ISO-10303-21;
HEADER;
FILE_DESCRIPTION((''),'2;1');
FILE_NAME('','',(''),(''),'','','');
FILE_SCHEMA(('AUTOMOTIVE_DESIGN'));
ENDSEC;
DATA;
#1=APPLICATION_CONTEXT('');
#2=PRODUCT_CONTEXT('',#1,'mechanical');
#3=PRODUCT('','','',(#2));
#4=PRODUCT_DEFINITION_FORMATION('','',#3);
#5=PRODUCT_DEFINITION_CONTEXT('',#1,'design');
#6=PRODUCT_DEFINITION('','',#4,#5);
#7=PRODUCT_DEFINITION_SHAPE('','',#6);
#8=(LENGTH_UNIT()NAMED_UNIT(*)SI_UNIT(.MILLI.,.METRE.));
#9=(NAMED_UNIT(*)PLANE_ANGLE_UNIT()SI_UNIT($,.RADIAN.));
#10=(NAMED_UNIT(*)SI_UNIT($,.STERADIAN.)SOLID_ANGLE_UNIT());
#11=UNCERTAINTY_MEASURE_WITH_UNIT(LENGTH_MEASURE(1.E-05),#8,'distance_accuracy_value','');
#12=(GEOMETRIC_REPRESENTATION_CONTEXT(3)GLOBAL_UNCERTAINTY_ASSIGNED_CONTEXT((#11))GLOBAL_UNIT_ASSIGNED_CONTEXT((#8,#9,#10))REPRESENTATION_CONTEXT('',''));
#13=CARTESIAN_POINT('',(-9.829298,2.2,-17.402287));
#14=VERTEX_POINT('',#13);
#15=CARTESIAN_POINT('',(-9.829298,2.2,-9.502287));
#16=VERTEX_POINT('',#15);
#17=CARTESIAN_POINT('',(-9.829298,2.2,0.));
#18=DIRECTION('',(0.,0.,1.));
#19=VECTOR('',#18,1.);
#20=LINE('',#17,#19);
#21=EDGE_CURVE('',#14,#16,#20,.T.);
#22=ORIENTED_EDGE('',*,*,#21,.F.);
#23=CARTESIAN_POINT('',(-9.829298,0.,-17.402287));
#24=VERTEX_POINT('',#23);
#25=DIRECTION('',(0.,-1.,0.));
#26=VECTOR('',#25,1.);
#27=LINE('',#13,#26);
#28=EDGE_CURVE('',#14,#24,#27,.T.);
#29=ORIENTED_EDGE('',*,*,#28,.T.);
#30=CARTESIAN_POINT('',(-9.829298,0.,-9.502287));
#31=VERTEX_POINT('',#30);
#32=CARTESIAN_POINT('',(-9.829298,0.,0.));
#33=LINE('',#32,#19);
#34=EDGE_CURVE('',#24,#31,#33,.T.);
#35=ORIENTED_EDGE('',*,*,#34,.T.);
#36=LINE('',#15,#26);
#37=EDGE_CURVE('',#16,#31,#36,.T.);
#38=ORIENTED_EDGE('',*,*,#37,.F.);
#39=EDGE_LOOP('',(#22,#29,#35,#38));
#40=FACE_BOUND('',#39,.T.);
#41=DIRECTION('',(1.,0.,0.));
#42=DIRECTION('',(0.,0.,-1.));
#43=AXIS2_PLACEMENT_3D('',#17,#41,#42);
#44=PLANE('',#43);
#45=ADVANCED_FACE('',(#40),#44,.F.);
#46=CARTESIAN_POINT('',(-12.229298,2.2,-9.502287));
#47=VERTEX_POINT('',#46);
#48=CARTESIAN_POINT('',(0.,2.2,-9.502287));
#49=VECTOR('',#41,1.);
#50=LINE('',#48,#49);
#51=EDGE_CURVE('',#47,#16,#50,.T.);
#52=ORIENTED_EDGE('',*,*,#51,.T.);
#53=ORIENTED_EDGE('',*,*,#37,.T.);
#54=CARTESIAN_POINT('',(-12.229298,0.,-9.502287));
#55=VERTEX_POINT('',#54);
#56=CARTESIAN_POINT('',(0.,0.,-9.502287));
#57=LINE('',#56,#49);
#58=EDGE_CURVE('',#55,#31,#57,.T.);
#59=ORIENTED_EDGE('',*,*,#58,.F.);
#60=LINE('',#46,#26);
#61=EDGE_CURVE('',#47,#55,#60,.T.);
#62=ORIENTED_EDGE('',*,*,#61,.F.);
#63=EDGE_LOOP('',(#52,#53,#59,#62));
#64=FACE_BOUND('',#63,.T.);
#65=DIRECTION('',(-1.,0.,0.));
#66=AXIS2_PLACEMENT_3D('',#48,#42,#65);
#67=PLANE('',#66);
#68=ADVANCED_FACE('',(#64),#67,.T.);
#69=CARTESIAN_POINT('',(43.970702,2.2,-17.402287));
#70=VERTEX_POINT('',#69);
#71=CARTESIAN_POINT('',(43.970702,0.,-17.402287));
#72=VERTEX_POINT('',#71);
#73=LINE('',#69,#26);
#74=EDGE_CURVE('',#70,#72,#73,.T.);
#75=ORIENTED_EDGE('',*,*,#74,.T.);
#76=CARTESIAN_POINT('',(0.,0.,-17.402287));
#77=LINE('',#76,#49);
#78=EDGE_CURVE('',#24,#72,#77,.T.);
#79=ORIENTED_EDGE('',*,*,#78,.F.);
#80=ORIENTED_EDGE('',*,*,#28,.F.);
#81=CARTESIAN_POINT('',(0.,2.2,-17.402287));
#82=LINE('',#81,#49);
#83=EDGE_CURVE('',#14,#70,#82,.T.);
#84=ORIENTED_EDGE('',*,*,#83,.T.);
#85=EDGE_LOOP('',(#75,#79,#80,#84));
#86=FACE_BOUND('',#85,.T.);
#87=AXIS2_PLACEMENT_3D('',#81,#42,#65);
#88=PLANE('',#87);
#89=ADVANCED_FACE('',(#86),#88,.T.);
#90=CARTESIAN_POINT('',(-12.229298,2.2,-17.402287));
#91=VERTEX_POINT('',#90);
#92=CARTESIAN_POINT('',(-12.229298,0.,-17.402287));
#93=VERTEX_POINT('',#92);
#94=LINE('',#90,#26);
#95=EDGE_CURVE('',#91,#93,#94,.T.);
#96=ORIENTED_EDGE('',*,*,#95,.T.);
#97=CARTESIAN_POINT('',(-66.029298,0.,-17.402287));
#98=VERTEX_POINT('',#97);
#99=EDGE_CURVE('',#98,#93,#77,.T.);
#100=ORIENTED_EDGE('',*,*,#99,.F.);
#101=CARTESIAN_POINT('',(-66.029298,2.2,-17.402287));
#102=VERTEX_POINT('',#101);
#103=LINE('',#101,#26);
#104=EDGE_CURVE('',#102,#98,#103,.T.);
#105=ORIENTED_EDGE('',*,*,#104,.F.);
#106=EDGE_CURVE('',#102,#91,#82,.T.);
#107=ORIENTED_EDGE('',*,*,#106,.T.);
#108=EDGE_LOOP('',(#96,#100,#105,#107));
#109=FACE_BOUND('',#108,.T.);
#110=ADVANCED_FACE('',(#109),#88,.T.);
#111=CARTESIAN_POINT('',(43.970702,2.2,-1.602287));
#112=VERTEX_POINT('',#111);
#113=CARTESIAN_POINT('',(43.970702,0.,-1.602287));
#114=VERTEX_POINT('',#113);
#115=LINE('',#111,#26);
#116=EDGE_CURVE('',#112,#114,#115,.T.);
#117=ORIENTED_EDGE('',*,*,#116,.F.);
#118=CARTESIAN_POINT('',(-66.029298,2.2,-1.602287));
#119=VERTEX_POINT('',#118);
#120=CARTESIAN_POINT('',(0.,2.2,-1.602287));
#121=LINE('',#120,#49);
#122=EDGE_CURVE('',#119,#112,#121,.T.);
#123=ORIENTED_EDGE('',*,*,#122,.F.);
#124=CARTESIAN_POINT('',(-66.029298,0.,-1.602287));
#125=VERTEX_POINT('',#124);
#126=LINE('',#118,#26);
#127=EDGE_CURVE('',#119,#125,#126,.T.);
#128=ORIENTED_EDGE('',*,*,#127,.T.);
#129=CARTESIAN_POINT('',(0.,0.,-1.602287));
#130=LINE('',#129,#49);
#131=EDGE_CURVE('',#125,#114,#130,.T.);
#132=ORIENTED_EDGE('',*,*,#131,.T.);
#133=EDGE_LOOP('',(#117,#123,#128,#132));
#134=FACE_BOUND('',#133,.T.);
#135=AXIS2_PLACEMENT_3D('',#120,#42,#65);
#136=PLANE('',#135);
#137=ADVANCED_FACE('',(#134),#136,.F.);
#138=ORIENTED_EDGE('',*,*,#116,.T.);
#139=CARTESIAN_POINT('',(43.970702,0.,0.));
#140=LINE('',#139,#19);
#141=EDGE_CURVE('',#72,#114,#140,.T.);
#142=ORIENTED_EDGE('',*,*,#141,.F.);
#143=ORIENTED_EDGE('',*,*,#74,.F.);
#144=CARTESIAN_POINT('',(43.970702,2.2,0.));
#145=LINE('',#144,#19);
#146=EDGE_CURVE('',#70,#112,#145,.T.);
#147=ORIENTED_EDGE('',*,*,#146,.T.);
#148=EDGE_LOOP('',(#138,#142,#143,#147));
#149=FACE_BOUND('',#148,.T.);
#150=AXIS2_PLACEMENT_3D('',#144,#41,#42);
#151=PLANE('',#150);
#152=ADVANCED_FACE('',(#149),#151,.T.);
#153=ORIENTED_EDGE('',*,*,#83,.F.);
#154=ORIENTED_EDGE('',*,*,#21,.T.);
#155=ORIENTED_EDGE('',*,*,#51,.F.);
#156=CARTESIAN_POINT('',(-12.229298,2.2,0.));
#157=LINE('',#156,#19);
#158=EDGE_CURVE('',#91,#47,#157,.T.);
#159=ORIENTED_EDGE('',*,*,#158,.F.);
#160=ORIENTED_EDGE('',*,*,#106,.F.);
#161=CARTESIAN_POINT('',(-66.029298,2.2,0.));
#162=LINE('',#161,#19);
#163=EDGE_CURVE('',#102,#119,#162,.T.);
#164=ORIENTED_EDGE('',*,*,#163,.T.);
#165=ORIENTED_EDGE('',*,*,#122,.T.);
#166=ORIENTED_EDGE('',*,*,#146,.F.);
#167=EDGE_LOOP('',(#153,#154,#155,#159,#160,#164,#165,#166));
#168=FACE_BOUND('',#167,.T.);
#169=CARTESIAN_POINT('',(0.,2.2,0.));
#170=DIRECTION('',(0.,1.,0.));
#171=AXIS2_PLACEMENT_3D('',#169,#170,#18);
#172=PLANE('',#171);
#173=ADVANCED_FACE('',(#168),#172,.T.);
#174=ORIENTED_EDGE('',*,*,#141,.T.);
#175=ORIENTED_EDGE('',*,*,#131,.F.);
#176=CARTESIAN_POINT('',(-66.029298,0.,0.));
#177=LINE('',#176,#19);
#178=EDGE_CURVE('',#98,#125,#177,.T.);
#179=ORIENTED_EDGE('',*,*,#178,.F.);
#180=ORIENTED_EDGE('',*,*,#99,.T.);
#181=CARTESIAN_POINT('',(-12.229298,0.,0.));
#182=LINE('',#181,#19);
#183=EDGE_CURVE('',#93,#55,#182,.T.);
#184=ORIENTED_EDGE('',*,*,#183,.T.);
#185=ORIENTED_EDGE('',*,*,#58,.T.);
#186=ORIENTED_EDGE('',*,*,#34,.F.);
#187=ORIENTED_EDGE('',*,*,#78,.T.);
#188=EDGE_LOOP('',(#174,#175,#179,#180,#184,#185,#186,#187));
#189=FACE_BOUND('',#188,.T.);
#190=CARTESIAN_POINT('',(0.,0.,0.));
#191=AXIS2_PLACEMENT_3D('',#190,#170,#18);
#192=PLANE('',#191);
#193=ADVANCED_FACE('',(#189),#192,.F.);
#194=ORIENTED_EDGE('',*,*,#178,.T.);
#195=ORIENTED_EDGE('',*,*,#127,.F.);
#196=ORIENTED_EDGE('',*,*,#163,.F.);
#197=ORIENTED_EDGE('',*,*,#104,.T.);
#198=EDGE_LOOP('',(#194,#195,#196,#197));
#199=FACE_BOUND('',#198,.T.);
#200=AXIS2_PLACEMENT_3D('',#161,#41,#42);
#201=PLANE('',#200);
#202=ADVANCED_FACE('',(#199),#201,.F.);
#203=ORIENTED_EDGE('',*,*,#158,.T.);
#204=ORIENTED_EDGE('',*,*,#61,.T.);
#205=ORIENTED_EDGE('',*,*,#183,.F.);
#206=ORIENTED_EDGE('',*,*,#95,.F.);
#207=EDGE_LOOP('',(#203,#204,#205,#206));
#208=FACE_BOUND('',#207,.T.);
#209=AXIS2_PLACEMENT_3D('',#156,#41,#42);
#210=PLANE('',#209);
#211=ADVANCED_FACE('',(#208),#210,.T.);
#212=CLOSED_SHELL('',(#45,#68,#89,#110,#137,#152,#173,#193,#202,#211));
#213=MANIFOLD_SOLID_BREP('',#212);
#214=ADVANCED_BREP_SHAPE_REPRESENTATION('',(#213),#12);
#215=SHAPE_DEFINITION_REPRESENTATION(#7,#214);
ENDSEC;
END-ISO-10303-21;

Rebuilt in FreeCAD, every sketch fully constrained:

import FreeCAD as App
import Part
import Sketcher
from FreeCAD import Vector
Q = App.Units.Quantity


def add_polygon(sketch, points):
    """Adds a closed chain of lines whose ends are joined by coincident constraints."""
    first, n = sketch.GeometryCount, len(points)
    for a, b in zip(points, points[1:] + points[:1]):
        sketch.addGeometry(Part.LineSegment(App.Vector(*a, 0), App.Vector(*b, 0)), False)
    for i in range(n):
        sketch.addConstraint(Sketcher.Constraint("Coincident", first + i, 2, first + (i + 1) % n, 1))

doc = App.newDocument("Part")
body = doc.addObject("PartDesign::Body", "Body")

# Sketch on XZ plane
sketch1 = body.newObject("Sketcher::SketchObject", "Sketch")
sketch1.AttachmentSupport = (doc.getObject("XZ_Plane"), [""])
sketch1.MapMode = "FlatFace"
add_polygon(sketch1, [(-9.829298, -9.502287), (-12.229298, -9.502287), (-12.229298, -17.402287), (-66.029298, -17.402287), (-66.029298, -1.602287), (43.970702, -1.602287), (43.970702, -17.402287), (-9.829298, -17.402287)])  # lines 0-7
sketch1.addConstraint([
    Sketcher.Constraint("Horizontal", 0),
    Sketcher.Constraint("Vertical", 1),
    Sketcher.Constraint("Horizontal", 2),
    Sketcher.Constraint("Vertical", 3),
    Sketcher.Constraint("Horizontal", 4),
    Sketcher.Constraint("Vertical", 5),
    Sketcher.Constraint("Horizontal", 6),
    Sketcher.Constraint("Vertical", 7),
    Sketcher.Constraint("Horizontal", 2, 2, 5, 2),
    Sketcher.Constraint("Equal", 2, 6),
    Sketcher.Constraint("DistanceX", 4, 1, 4, 2, Q("110 mm")),
    Sketcher.Constraint("DistanceX", 0, 2, 0, 1, Q("2.4 mm")),
    Sketcher.Constraint("DistanceY", 1, 2, 1, 1, Q("7.9 mm")),
    Sketcher.Constraint("DistanceY", 3, 1, 3, 2, Q("15.8 mm")),
    Sketcher.Constraint("DistanceX", 0, 2, -1, 1, Q("12.229298 mm")),
    Sketcher.Constraint("DistanceY", 0, 2, -1, 1, Q("9.502287 mm")),
])
pad1 = body.newObject("PartDesign::Pad", "Pad")
pad1.Profile = sketch1
pad1.Length = 2.2
pad1.Reversed = True

doc.recompute()
